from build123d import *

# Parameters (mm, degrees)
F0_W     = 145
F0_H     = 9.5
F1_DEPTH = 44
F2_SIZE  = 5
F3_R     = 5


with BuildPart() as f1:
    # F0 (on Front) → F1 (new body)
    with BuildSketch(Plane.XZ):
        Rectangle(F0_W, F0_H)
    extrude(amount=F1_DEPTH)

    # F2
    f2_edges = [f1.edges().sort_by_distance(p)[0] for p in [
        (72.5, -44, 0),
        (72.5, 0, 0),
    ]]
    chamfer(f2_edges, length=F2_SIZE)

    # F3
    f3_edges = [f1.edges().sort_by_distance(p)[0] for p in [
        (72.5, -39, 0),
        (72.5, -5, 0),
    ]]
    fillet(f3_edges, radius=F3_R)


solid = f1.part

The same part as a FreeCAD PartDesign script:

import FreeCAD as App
import Part
import Sketcher

V = App.Vector
Q = App.Units.Quantity


def edges_at(feature, points):
    """Names of the edges that pass closest to the given points."""
    edges = feature.Shape.Edges
    near = lambda p: min(range(len(edges)), key=lambda i: edges[i].distToShape(Part.Vertex(*p))[0])
    return sorted({f"Edge{near(p) + 1}" for p in points})

doc = App.newDocument("Part")
body = doc.addObject("PartDesign::Body", "Body")

sketch1 = body.newObject("Sketcher::SketchObject", "Sketch")
sketch1.AttachmentSupport = (doc.getObject("XZ_Plane"), [""])
sketch1.MapMode = "FlatFace"
sketch1.addGeometry([
    Part.LineSegment(V(-72.5, 4.75, 0), V(-72.5, -4.75, 0)),
    Part.LineSegment(V(-72.5, -4.75, 0), V(72.5, -4.75, 0)),
    Part.LineSegment(V(72.5, -4.75, 0), V(72.5, 4.75, 0)),
    Part.LineSegment(V(72.5, 4.75, 0), V(-72.5, 4.75, 0)),
], False)
sketch1.addConstraint([
    Sketcher.Constraint("Coincident", 0, 2, 1, 1),
    Sketcher.Constraint("Coincident", 1, 2, 2, 1),
    Sketcher.Constraint("Coincident", 2, 2, 3, 1),
    Sketcher.Constraint("Coincident", 3, 2, 0, 1),
    Sketcher.Constraint("Vertical", 0),
    Sketcher.Constraint("Horizontal", 1),
    Sketcher.Constraint("Vertical", 2),
    Sketcher.Constraint("Horizontal", 3),
    Sketcher.Constraint("Symmetric", 0, 2, 2, 2, -1, 1),
    Sketcher.Constraint("DistanceX", 1, 1, 1, 2, Q("145 mm")),
    Sketcher.Constraint("DistanceY", 0, 2, 0, 1, Q("9.5 mm")),
])
pad1 = body.newObject("PartDesign::Pad", "Pad")
pad1.Profile = sketch1
pad1.Length = 44
doc.recompute()

chamfer = body.newObject("PartDesign::Chamfer", "Chamfer")
chamfer.Base = (pad1, edges_at(pad1, [(72.5, -44, 0), (72.5, 0, 0)]))
chamfer.Size = 5
doc.recompute()

fillet = body.newObject("PartDesign::Fillet", "Fillet")
fillet.Base = (chamfer, edges_at(chamfer, [(72.5, -39, 0), (72.5, -5, 0)]))
fillet.Radius = 5

doc.recompute()
